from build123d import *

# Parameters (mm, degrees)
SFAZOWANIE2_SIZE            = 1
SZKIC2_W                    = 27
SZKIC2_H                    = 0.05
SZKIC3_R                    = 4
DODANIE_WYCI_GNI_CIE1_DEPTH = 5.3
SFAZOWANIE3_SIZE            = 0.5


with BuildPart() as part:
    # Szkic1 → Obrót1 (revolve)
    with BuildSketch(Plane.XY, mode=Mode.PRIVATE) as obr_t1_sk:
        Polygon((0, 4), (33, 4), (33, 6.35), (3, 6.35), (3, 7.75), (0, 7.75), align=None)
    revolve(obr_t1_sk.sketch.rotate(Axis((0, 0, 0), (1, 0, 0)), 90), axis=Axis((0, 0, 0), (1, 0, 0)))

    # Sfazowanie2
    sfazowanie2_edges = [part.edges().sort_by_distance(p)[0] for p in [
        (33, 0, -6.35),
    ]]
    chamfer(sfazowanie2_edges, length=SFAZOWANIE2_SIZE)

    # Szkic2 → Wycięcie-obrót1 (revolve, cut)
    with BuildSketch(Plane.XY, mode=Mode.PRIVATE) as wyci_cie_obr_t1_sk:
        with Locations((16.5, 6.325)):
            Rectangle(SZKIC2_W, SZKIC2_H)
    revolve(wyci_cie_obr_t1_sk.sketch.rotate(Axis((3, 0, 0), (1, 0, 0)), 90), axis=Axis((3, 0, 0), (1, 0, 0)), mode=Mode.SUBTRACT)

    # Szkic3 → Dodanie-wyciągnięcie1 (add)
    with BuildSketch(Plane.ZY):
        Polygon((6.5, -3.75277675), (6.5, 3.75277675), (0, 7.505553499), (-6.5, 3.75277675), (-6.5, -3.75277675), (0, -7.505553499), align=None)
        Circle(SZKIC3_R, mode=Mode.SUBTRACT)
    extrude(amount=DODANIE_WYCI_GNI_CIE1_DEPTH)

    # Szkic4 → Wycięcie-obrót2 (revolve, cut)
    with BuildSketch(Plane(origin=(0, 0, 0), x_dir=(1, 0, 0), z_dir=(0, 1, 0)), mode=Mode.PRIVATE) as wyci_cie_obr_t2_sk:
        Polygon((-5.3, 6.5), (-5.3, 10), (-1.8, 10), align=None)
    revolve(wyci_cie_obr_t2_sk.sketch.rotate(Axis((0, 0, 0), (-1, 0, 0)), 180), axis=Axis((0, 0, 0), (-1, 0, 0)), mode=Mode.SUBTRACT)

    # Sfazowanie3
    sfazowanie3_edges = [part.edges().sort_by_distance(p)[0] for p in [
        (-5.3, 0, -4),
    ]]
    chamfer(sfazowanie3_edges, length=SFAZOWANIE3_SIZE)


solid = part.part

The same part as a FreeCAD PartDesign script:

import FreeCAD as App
import Part
import Sketcher
Q = App.Units.Quantity


def edges_at(feature, points):
    """Names of the edges that pass closest to the given points."""
    edges = feature.Shape.Edges
    near = lambda p: min(range(len(edges)), key=lambda i: edges[i].distToShape(Part.Vertex(*p))[0])
    return sorted({f"Edge{near(p) + 1}" for p in points})


def add_polygon(sketch, points):
    """Adds a closed chain of lines whose ends are joined by coincident constraints."""
    first, n = sketch.GeometryCount, len(points)
    for a, b in zip(points, points[1:] + points[:1]):
        sketch.addGeometry(Part.LineSegment(App.Vector(*a, 0), App.Vector(*b, 0)), False)
    for i in range(n):
        sketch.addConstraint(Sketcher.Constraint("Coincident", first + i, 2, first + (i + 1) % n, 1))

doc = App.newDocument("Part")
params = doc.addObject("Spreadsheet::Sheet", "Params")
for row, (alias, value) in enumerate([
    ("sketch1_width", "33 mm"),
    ("sketch1_width2", "30 mm"),
    ("sketch1_height", "1.4 mm"),
    ("sketch1_height2", "2.35 mm"),
    ("revolution_angle", "360 deg"),
    ("chamfer_size", "1 mm"),
    ("sketch2_width", "27 mm"),
    ("sketch2_height", "0.05 mm"),
    ("groove_angle", "360 deg"),
    ("sketch3_diameter", "8 mm"),
    ("pad1_length", "5.3 mm"),
    ("sketch4_width", "3.5 mm"),
    ("groove2_angle", "360 deg"),
    ("chamfer2_size", "0.5 mm"),
], start=1):
    params.set(f"A{row}", alias)
    params.set(f"B{row}", "=" + value)
    params.setAlias(f"B{row}", alias)

body = doc.addObject("PartDesign::Body", "Body")

sketch1 = body.newObject("Sketcher::SketchObject", "Sketch")
sketch1.AttachmentSupport = (doc.getObject("XY_Plane"), [""])
sketch1.MapMode = "FlatFace"
add_polygon(sketch1, [(0, 4), (33, 4), (33, 6.3), (3, 6.3), (3, 7.8), (0, 7.8)])
sketch1.addConstraint([
    Sketcher.Constraint("Horizontal", 0),
    Sketcher.Constraint("Vertical", 1),
    Sketcher.Constraint("Horizontal", 2),
    Sketcher.Constraint("Vertical", 3),
    Sketcher.Constraint("Horizontal", 4),
    Sketcher.Constraint("Vertical", 5),
    Sketcher.Constraint("PointOnObject", 4, 2, -2),
    Sketcher.Constraint("DistanceX", 0, 1, 0, 2, Q("33 mm")),
    Sketcher.Constraint("DistanceX", 2, 2, 2, 1, Q("30 mm")),
    Sketcher.Constraint("DistanceY", 3, 1, 3, 2, Q("1.4 mm")),
    Sketcher.Constraint("DistanceY", -1, 1, 0, 2, Q("4 mm")),
    Sketcher.Constraint("DistanceY", 1, 1, 1, 2, Q("2.35 mm")),
])
sketch1.setExpression("Constraints[13]", "Params.sketch1_width")
sketch1.setExpression("Constraints[14]", "Params.sketch1_width2")
sketch1.setExpression("Constraints[15]", "Params.sketch1_height")
sketch1.setExpression("Constraints[17]", "Params.sketch1_height2")
revolution = body.newObject("PartDesign::Revolution", "Revolution")
revolution.Profile = sketch1
revolution.ReferenceAxis = (sketch1, ["H_Axis"])
revolution.setExpression("Angle", "Params.revolution_angle")
doc.recompute()

chamfer = body.newObject("PartDesign::Chamfer", "Chamfer")
chamfer.Base = (revolution, edges_at(revolution, [(33, 0, -6.35)]))
chamfer.setExpression("Size", "Params.chamfer_size")

sketch2 = body.newObject("Sketcher::SketchObject", "Sketch001")
sketch2.AttachmentSupport = (doc.getObject("XY_Plane"), [""])
sketch2.MapMode = "FlatFace"
add_polygon(sketch2, [(3, 6.35), (3, 6.3), (30, 6.3), (30, 6.35)])
sketch2.addConstraint([
    Sketcher.Constraint("Vertical", 0),
    Sketcher.Constraint("Horizontal", 1),
    Sketcher.Constraint("Vertical", 2),
    Sketcher.Constraint("Horizontal", 3),
    Sketcher.Constraint("DistanceX", 1, 1, 1, 2, Q("27 mm")),
    Sketcher.Constraint("DistanceX", -1, 1, 0, 2, Q("3 mm")),
    Sketcher.Constraint("DistanceY", 0, 2, 0, 1, Q("0.05 mm")),
    Sketcher.Constraint("DistanceY", -1, 1, 0, 2, Q("6.3 mm")),
])
sketch2.setExpression("Constraints[8]", "Params.sketch2_width")
sketch2.setExpression("Constraints[10]", "Params.sketch2_height")
groove = body.newObject("PartDesign::Groove", "Groove")
groove.Profile = sketch2
groove.ReferenceAxis = (sketch2, ["H_Axis"])
groove.setExpression("Angle", "Params.groove_angle")

sketch3 = body.newObject("Sketcher::SketchObject", "Sketch002")
sketch3.AttachmentSupport = (doc.getObject("YZ_Plane"), [""])
sketch3.MapMode = "FlatFace"
add_polygon(sketch3, [(-3.8, 6.5), (3.8, 6.5), (7.5, 0), (3.8, -6.5), (-3.8, -6.5), (-7.5, 0)])
sketch3.addGeometry(Part.Circle(App.Vector(0, 0, 0), App.Vector(0, 0, 1), 4), False)
sketch3.addConstraint([
    Sketcher.Constraint("Horizontal", 0),
    Sketcher.Constraint("Horizontal", 3),
    Sketcher.Constraint("Coincident", 6, 3, -1, 1),
    Sketcher.Constraint("Symmetric", 0, 2, 3, 2, -1, 1),
    Sketcher.Constraint("Symmetric", 1, 2, 4, 2, -1, 1),
    Sketcher.Constraint("PointOnObject", 1, 2, -1),
    Sketcher.Constraint("Parallel", 2, 5),
    Sketcher.Constraint("Vertical", 0, 2, 2, 2),
    Sketcher.Constraint("Diameter", 6, Q("8 mm")),
    Sketcher.Constraint("Angle", 1, Q("-60 deg")),
    Sketcher.Constraint("DistanceY", 2, 2, 0, 2, Q("13 mm")),
    Sketcher.Constraint("DistanceX", 0, 1, 0, 2, Q("7.505554 mm")),
])
sketch3.setExpression("Constraints[14]", "Params.sketch3_diameter")
pad1 = body.newObject("PartDesign::Pad", "Pad")
pad1.Profile = sketch3
pad1.setExpression("Length", "Params.pad1_length")
pad1.Reversed = True

sketch4 = body.newObject("Sketcher::SketchObject", "Sketch003")
sketch4.AttachmentSupport = (doc.getObject("XZ_Plane"), [""])
sketch4.MapMode = "FlatFace"
add_polygon(sketch4, [(-5.3, -10), (-5.3, -6.5), (-1.8, -10)])
sketch4.addConstraint([
    Sketcher.Constraint("Vertical", 0),
    Sketcher.Constraint("Horizontal", 2),
    Sketcher.Constraint("Equal", 2, 0),
    Sketcher.Constraint("DistanceX", 2, 2, 2, 1, Q("3.5 mm")),
    Sketcher.Constraint("DistanceY", 1, 2, -1, 1, Q("10 mm")),
    Sketcher.Constraint("DistanceX", 0, 2, -1, 1, Q("5.3 mm")),
])
sketch4.setExpression("Constraints[6]", "Params.sketch4_width")
groove2 = body.newObject("PartDesign::Groove", "Groove001")
groove2.Profile = sketch4
groove2.ReferenceAxis = (sketch4, ["H_Axis"])
groove2.setExpression("Angle", "Params.groove2_angle")
doc.recompute()

chamfer2 = body.newObject("PartDesign::Chamfer", "Chamfer001")
chamfer2.Base = (groove2, edges_at(groove2, [(-5.3, 0, -4)]))
chamfer2.setExpression("Size", "Params.chamfer2_size")

doc.recompute()
